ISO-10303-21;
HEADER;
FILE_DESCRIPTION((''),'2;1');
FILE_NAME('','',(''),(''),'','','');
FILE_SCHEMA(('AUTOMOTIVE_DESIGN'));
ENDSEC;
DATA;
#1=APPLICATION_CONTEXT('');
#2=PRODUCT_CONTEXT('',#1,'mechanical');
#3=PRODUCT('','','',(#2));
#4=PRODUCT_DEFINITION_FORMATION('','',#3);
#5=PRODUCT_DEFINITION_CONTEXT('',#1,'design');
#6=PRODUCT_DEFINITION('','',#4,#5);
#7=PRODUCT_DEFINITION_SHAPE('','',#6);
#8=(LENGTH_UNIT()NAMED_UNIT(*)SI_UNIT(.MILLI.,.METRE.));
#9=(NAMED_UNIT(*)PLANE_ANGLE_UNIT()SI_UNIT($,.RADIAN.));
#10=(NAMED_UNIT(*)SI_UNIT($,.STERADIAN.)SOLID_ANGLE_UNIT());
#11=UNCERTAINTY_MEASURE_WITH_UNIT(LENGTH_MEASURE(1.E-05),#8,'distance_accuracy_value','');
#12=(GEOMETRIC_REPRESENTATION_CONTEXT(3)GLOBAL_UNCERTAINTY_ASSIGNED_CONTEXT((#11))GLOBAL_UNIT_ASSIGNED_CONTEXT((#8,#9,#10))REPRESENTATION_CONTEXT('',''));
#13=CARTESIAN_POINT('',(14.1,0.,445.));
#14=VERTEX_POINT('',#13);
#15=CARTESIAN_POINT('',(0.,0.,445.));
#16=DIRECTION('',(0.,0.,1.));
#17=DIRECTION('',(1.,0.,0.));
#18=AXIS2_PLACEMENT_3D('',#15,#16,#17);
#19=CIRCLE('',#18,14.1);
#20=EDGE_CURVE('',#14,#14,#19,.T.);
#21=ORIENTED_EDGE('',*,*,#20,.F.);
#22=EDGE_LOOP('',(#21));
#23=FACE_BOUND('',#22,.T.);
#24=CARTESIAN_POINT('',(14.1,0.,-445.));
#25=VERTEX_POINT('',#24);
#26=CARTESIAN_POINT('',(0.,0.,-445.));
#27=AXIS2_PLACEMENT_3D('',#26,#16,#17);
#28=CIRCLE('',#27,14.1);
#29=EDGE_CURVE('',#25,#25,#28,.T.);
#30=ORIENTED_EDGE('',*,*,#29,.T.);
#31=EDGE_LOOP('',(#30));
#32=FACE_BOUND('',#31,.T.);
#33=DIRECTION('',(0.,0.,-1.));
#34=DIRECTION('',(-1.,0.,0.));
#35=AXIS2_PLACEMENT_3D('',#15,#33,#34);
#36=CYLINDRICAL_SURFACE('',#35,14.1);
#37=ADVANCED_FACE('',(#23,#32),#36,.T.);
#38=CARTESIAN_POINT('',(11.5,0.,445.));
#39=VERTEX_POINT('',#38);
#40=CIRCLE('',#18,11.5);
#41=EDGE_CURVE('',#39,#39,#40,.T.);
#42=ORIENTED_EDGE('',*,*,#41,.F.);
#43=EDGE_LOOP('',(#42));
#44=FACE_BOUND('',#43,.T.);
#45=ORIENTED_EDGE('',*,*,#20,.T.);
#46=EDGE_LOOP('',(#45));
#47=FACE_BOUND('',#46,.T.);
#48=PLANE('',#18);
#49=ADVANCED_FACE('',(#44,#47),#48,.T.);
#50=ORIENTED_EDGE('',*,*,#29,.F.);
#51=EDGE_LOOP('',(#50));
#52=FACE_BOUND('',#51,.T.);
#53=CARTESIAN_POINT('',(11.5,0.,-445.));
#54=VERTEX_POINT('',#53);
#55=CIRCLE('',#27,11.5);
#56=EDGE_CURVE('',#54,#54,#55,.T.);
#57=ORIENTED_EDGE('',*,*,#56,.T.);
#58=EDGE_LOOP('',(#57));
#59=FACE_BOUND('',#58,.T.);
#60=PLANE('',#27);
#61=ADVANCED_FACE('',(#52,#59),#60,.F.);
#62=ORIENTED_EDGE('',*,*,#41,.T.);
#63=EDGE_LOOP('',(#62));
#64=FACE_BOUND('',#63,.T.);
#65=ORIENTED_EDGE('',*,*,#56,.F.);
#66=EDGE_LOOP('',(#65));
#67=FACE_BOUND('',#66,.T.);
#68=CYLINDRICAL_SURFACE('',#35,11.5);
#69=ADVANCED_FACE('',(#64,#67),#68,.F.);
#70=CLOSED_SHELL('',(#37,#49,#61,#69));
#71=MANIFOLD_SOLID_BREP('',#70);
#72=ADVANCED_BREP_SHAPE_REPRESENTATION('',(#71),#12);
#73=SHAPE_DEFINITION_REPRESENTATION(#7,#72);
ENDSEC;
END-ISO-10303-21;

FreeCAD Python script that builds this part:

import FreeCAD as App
import Part
import Sketcher

V = App.Vector
Q = App.Units.Quantity

doc = App.newDocument("Part")
body = doc.addObject("PartDesign::Body", "Body")

# Sketch on XY plane
sketch1 = doc.addObject("Sketcher::SketchObject", "Sketch")
body.addObject(sketch1)
sketch1.AttachmentSupport = (doc.XY_Plane, [""])
sketch1.MapMode = "FlatFace"
sketch1.addGeometry(Part.Circle(V(0, 0, 0), V(0, 0, 1), 14), False)
sketch1.addGeometry(Part.Circle(V(0, 0, 0), V(0, 0, 1), 12), False)
sketch1.addConstraint(Sketcher.Constraint("Coincident", 0, 3, -1, 1))
sketch1.addConstraint(Sketcher.Constraint("Coincident", 1, 3, -1, 1))
sketch1.addConstraint(Sketcher.Constraint("Diameter", 1, Q("23 mm")))
sketch1.addConstraint(Sketcher.Constraint("Diameter", 0, Q("28.2 mm")))
pad1 = doc.addObject("PartDesign::Pad", "Pad")
body.addObject(pad1)
pad1.Profile = sketch1
pad1.Length = 890
pad1.Midplane = True

doc.recompute()
